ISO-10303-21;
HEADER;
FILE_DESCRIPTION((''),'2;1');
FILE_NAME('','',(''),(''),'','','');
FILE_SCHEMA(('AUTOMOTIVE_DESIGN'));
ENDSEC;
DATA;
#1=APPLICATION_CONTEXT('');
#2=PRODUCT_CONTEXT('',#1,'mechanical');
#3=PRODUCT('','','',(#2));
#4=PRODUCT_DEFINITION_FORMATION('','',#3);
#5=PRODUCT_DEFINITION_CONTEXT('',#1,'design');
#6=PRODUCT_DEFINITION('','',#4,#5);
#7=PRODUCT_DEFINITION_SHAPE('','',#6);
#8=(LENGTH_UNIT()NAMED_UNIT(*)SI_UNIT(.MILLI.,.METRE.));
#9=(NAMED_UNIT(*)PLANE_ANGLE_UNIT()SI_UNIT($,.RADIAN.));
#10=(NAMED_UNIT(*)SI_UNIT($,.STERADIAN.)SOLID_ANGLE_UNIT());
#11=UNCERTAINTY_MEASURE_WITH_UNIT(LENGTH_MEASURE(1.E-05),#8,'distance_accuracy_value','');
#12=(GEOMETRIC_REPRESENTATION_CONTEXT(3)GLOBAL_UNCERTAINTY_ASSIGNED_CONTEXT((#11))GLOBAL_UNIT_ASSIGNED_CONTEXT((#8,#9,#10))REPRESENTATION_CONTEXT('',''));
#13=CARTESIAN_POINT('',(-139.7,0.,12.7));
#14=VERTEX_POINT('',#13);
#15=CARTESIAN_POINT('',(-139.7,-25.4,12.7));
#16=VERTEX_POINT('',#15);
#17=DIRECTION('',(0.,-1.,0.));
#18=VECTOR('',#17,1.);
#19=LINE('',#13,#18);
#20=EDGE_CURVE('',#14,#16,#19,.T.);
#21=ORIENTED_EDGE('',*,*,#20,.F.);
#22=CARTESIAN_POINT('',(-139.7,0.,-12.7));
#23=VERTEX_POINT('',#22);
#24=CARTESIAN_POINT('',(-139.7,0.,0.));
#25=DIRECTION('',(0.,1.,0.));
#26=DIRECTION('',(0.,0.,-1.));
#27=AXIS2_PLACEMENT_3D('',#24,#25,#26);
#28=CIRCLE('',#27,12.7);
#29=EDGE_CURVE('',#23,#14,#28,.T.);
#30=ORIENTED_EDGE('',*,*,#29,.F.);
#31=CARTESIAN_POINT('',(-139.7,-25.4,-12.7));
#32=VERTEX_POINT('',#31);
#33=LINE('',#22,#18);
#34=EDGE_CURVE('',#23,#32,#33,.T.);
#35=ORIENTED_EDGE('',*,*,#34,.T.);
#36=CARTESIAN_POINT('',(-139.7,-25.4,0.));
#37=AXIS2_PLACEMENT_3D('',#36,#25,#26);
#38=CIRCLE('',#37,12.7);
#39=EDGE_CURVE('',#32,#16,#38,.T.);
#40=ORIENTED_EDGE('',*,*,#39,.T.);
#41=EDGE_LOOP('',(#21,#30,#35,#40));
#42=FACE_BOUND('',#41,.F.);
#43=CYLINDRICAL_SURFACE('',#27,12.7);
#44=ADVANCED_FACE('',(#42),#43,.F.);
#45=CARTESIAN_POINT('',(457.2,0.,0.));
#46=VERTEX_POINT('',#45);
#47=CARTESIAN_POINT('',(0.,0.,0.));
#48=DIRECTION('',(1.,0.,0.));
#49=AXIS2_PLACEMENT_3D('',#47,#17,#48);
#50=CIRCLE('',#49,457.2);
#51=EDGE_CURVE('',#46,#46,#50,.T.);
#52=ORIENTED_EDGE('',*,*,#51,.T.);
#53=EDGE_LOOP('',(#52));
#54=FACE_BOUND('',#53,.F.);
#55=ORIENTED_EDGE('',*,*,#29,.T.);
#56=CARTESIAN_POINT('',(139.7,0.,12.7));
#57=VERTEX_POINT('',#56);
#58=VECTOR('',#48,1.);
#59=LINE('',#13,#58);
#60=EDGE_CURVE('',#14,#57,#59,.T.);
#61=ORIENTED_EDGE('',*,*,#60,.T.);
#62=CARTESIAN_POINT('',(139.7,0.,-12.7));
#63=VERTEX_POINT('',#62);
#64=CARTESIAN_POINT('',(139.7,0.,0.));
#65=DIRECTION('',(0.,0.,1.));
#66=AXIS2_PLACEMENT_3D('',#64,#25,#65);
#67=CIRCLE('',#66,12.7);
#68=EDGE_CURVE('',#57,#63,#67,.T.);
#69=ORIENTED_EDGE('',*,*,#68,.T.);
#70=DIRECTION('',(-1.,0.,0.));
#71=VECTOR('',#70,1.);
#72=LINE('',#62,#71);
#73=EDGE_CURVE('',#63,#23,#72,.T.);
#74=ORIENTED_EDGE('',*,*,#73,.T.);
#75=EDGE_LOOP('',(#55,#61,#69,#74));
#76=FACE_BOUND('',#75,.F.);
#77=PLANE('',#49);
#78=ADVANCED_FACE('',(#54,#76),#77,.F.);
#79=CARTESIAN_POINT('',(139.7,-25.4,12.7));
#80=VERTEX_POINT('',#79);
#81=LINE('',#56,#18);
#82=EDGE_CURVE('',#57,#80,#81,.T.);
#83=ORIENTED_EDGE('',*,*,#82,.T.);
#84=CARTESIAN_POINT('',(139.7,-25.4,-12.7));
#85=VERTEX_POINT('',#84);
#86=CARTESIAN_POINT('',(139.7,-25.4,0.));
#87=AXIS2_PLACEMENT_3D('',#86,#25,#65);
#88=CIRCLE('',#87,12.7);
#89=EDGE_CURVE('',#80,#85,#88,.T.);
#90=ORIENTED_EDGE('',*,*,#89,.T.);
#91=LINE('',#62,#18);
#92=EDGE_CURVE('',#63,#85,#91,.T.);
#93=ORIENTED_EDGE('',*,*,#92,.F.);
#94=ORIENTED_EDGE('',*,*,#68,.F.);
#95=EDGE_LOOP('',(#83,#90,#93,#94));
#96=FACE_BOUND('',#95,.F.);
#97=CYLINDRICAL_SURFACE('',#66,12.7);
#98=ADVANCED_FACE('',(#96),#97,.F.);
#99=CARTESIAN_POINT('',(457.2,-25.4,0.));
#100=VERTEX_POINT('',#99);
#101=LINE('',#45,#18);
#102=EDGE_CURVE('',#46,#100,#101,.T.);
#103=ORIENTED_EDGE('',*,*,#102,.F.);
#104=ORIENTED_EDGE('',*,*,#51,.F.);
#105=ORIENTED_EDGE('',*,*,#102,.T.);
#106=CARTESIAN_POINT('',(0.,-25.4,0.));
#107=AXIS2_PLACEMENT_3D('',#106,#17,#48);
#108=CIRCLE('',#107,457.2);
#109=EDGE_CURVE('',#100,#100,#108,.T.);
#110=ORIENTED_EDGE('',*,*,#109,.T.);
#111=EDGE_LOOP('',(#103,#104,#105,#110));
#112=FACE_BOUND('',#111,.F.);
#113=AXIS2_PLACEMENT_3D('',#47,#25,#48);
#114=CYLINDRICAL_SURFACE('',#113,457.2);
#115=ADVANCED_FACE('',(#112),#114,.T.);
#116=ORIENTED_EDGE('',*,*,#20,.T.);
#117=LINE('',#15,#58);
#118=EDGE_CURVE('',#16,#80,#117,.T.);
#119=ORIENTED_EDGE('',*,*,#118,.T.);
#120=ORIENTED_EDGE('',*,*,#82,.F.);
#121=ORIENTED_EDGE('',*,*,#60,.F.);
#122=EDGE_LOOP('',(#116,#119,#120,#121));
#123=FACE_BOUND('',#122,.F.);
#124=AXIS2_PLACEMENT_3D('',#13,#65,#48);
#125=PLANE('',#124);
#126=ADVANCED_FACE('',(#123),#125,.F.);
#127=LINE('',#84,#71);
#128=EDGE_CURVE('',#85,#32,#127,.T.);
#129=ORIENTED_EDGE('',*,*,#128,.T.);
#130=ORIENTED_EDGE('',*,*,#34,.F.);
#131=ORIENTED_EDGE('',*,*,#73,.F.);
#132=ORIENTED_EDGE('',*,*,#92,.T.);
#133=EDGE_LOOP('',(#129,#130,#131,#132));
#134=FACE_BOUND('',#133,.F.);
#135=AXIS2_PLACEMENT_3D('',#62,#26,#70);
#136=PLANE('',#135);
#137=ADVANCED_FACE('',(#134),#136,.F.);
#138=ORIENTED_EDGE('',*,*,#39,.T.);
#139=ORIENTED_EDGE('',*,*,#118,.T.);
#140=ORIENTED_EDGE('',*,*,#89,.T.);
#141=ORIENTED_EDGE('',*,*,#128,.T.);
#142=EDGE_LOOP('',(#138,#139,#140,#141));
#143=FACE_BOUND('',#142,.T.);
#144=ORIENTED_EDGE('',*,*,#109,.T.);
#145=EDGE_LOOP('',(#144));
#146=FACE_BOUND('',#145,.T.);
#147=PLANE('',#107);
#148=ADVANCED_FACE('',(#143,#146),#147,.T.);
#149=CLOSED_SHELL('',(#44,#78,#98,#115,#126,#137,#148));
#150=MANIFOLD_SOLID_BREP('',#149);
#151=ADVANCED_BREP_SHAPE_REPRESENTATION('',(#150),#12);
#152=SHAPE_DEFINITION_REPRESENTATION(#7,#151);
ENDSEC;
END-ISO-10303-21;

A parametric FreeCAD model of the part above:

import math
import FreeCAD as App
import Part
import Sketcher

V = App.Vector
Q = App.Units.Quantity

doc = App.newDocument("Part")
params = doc.addObject("Spreadsheet::Sheet", "Params")
for row, (alias, value) in enumerate([
    ("sketch1_diameter", "36 in"),
    ("sketch1_radius", "0.5 in"),
    ("sketch1_width", "11 in"),
    ("pad1_length", "1 in"),
], start=1):
    params.set(f"A{row}", alias)
    params.set(f"B{row}", "=" + value)
    params.setAlias(f"B{row}", alias)

body = doc.addObject("PartDesign::Body", "Body")

sketch1 = doc.addObject("Sketcher::SketchObject", "Sketch")
body.addObject(sketch1)
sketch1.AttachmentSupport = (doc.XZ_Plane, [""])
sketch1.MapMode = "FlatFace"
sketch1.addGeometry([
    Part.Circle(V(0, 0, 0), V(0, 0, 1), 457),
    Part.LineSegment(V(140, -13, 0), V(-140, -13, 0)),
    Part.ArcOfCircle(Part.Circle(V(-140, 0, 0), V(0, 0, 1), 13), math.radians(90), math.radians(270)),
    Part.LineSegment(V(-140, 13, 0), V(140, 13, 0)),
    Part.ArcOfCircle(Part.Circle(V(140, 0, 0), V(0, 0, 1), 13), math.radians(-90), math.radians(90)),
], False)
sketch1.addConstraint([
    Sketcher.Constraint("Tangent", 1, 2, 2, 2),
    Sketcher.Constraint("Tangent", 2, 1, 3, 1),
    Sketcher.Constraint("Tangent", 3, 2, 4, 2),
    Sketcher.Constraint("Tangent", 4, 1, 1, 1),
    Sketcher.Constraint("Horizontal", 1),
    Sketcher.Constraint("Horizontal", 3),
    Sketcher.Constraint("Coincident", 0, 3, -1, 1),
    Sketcher.Constraint("Symmetric", 2, 3, 4, 3, -1, 1),
    Sketcher.Constraint("Diameter", 0, Q("36 in")),
    Sketcher.Constraint("Radius", 2, Q("0.5 in")),
    Sketcher.Constraint("DistanceX", 1, 2, 1, 1, Q("11 in")),
])
sketch1.setExpression("Constraints[8]", "Params.sketch1_diameter")
sketch1.setExpression("Constraints[9]", "Params.sketch1_radius")
sketch1.setExpression("Constraints[10]", "Params.sketch1_width")
pad1 = doc.addObject("PartDesign::Pad", "Pad")
body.addObject(pad1)
pad1.Profile = sketch1
pad1.setExpression("Length", "Params.pad1_length")

doc.recompute()
